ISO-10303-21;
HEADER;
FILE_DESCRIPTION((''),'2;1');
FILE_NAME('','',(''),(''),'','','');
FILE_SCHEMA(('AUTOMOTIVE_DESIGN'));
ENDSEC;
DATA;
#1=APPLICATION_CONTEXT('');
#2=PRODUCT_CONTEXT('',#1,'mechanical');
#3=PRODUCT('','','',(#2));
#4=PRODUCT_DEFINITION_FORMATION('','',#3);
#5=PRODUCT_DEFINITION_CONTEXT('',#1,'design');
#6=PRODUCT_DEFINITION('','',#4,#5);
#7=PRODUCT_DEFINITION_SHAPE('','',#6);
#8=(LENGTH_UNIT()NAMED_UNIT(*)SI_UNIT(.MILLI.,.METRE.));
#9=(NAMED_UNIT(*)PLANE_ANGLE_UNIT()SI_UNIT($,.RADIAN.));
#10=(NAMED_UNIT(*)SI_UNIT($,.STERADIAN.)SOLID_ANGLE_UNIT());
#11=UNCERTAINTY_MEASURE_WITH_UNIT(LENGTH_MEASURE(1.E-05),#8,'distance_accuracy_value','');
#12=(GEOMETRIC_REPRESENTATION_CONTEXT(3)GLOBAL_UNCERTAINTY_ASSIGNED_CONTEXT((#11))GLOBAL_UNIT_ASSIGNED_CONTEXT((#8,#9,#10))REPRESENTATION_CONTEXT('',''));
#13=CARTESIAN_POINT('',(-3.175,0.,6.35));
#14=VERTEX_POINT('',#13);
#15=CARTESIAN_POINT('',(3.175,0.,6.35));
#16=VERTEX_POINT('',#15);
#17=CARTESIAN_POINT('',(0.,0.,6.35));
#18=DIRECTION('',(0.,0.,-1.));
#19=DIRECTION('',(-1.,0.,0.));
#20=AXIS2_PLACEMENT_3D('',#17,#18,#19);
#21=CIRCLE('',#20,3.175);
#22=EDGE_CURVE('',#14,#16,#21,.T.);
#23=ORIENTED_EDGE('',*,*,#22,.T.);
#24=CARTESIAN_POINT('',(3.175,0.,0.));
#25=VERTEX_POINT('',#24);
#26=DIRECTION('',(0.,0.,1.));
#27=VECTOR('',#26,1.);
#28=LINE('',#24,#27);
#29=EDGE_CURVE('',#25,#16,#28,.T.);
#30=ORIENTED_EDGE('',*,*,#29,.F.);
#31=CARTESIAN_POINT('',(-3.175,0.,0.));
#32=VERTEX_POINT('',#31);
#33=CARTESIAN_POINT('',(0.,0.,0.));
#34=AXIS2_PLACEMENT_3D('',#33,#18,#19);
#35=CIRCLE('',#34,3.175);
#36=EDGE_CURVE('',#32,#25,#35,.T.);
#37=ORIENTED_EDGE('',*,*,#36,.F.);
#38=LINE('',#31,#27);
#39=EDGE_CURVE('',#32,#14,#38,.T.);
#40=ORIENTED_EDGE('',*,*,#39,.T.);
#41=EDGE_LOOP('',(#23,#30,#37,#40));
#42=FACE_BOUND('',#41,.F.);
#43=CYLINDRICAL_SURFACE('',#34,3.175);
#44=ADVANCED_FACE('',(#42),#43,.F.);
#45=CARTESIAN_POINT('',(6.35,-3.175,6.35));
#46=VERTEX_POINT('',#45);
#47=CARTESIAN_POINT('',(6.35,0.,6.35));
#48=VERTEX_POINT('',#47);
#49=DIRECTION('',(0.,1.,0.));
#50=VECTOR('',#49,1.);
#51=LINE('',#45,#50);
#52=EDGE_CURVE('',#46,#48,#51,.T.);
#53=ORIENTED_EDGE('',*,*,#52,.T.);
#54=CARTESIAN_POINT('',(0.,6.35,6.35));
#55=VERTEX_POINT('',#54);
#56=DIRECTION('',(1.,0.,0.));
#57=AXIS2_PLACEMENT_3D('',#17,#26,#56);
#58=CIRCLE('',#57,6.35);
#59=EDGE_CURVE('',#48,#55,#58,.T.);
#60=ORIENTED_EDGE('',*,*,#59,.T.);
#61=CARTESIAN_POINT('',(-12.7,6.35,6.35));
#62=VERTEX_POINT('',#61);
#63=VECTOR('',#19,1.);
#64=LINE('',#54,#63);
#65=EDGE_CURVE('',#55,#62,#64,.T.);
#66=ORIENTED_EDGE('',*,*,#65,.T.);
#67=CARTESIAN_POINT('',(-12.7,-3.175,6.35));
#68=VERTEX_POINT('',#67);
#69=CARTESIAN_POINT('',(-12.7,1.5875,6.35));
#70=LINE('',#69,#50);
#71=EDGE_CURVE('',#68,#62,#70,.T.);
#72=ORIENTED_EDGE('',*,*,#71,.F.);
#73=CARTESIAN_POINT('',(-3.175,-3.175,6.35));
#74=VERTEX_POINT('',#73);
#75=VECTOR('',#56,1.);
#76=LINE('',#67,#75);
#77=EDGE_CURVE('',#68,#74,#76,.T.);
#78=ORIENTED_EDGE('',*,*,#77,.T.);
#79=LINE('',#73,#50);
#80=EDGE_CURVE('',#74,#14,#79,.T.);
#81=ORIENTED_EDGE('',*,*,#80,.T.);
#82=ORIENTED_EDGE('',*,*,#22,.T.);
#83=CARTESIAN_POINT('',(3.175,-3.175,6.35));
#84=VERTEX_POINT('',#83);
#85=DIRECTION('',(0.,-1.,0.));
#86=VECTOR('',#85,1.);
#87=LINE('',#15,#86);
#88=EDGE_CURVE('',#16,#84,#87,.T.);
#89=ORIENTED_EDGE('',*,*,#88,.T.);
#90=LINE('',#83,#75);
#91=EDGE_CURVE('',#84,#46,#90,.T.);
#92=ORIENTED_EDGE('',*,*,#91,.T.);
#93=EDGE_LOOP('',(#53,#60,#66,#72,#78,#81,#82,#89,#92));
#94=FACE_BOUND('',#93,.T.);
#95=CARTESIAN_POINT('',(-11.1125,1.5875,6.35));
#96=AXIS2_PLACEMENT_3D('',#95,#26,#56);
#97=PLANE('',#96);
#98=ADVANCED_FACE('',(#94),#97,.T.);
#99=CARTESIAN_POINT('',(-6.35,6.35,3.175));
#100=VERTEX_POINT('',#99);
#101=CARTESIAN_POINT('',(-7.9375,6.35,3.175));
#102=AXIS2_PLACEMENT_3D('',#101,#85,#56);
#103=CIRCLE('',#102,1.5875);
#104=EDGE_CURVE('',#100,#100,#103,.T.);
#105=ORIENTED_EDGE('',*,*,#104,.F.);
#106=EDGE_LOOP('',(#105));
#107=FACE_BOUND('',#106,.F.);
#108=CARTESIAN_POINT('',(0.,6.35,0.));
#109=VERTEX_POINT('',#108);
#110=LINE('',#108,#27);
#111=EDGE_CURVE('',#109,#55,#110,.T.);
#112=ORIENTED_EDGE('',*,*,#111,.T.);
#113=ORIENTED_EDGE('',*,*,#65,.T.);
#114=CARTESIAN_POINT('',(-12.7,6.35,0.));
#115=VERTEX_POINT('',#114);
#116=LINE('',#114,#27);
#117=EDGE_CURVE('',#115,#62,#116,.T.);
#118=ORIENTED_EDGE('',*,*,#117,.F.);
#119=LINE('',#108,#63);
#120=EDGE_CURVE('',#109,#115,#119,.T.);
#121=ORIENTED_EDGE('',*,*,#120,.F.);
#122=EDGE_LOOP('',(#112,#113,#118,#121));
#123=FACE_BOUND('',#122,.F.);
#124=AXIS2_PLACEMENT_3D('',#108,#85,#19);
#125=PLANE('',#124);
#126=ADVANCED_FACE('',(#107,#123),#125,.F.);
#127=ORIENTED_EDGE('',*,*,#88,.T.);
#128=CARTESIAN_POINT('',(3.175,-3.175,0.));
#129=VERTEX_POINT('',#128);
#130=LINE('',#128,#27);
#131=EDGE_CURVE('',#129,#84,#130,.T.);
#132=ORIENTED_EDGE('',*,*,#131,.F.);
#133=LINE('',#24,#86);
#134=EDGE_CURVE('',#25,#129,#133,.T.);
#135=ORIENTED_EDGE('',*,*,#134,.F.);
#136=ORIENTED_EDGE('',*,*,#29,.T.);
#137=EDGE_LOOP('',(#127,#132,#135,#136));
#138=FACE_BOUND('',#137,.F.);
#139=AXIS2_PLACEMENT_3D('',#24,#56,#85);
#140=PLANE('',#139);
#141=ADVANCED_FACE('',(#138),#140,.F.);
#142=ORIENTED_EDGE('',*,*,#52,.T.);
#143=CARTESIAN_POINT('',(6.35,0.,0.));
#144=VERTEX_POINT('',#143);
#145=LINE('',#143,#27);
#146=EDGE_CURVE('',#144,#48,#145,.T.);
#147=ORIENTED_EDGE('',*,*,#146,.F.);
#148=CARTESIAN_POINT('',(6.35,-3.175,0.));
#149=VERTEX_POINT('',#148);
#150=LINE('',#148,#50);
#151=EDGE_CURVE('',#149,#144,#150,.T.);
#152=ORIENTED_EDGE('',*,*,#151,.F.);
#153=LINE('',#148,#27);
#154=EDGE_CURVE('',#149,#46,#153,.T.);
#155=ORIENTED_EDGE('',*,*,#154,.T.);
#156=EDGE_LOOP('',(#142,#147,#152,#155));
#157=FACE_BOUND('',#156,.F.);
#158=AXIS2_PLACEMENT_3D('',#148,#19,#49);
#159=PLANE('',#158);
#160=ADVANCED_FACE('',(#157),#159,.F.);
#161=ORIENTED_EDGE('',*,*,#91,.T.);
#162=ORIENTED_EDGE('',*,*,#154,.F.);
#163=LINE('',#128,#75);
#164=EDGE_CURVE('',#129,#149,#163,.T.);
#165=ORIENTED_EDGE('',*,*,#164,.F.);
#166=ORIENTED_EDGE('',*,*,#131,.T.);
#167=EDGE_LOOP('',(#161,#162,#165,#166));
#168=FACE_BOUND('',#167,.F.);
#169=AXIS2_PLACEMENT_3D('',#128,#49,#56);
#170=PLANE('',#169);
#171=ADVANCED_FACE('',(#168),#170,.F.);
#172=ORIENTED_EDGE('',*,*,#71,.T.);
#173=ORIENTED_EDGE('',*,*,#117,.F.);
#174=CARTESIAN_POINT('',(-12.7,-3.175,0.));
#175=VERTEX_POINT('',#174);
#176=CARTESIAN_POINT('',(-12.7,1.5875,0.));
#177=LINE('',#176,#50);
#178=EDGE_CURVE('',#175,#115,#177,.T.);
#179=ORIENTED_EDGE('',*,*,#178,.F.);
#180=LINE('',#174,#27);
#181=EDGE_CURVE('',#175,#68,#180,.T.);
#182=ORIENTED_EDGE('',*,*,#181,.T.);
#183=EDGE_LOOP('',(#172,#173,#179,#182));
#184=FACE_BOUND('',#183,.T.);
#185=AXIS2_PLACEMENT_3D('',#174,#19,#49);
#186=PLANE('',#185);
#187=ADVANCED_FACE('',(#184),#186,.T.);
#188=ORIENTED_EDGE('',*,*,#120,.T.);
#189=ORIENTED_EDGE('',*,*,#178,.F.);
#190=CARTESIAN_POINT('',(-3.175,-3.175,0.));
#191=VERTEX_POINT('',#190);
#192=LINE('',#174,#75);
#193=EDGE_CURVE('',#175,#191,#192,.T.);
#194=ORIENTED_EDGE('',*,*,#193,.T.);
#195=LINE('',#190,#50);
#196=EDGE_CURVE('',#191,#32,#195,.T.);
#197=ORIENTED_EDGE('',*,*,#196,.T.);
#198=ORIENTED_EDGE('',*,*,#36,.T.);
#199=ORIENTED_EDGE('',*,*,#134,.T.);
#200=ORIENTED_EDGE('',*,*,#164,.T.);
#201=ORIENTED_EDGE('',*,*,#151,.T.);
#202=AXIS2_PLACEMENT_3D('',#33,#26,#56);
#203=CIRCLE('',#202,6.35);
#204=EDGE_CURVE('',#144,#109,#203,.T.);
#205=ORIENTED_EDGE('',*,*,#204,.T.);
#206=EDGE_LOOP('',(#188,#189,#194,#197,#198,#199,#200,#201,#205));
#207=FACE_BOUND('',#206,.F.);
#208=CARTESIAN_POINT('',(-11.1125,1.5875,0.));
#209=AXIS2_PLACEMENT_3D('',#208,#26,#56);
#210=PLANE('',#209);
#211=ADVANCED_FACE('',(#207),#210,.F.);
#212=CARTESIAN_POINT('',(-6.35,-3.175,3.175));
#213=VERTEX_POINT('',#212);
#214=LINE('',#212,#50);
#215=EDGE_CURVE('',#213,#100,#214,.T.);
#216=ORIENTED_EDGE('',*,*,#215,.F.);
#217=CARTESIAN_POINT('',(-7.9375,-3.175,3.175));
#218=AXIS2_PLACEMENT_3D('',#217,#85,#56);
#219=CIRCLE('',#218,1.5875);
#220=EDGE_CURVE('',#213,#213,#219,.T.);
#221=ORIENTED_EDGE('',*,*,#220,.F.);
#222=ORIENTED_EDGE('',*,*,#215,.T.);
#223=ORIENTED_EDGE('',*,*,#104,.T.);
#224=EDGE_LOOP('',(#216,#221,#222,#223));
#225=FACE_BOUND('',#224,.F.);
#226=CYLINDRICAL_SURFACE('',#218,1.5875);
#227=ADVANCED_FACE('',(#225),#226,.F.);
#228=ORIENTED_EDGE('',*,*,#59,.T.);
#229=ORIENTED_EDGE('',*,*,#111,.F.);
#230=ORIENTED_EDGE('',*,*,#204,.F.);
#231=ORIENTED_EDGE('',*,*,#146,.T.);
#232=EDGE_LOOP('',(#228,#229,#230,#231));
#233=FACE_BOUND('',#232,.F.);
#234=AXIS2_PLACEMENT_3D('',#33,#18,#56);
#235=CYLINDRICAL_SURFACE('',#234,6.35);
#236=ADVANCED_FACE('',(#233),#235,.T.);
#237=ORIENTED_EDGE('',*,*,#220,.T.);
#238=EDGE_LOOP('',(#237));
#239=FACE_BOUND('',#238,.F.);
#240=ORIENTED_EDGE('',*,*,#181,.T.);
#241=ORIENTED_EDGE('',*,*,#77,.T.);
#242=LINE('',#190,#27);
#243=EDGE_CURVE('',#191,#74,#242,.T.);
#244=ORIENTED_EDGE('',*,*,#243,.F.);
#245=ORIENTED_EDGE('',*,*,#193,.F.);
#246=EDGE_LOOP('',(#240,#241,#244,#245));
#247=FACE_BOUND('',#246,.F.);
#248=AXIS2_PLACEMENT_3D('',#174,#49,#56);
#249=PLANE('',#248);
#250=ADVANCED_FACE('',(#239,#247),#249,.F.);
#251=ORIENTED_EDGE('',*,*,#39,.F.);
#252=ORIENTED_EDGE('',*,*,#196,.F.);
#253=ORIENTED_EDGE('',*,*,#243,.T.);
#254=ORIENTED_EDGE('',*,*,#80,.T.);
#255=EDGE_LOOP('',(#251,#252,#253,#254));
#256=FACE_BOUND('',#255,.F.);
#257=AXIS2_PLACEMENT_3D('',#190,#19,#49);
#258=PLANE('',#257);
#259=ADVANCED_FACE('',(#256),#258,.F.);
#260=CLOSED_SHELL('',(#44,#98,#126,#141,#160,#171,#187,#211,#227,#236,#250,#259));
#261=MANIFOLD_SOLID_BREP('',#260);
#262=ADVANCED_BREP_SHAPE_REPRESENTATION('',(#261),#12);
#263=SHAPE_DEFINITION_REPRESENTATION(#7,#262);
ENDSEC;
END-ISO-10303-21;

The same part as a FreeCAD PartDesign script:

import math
import FreeCAD as App
import Part
import Sketcher

V = App.Vector
Q = App.Units.Quantity

doc = App.newDocument("Part")
body = doc.addObject("PartDesign::Body", "Body")

# Sketch on XY plane
sketch1 = body.newObject("Sketcher::SketchObject", "Sketch")
sketch1.AttachmentSupport = (doc.getObject("XY_Plane"), [""])
sketch1.MapMode = "FlatFace"
sketch1.addGeometry(Part.LineSegment(V(-12.7, 6.3, 0), V(-12.7, -3.2, 0)), False)
sketch1.addGeometry(Part.LineSegment(V(-12.7, -3.2, 0), V(-3.2, -3.2, 0)), False)
sketch1.addGeometry(Part.LineSegment(V(-3.2, -3.2, 0), V(-3.2, 0, 0)), False)
sketch1.addGeometry(Part.ArcOfCircle(Part.Circle(V(0, 0, 0), V(0, 0, 1), 3.2), math.radians(0), math.radians(180)), False)
sketch1.addGeometry(Part.LineSegment(V(3.2, 0, 0), V(3.2, -3.2, 0)), False)
sketch1.addGeometry(Part.LineSegment(V(3.2, -3.2, 0), V(6.3, -3.2, 0)), False)
sketch1.addGeometry(Part.LineSegment(V(6.3, -3.2, 0), V(6.3, 0, 0)), False)
sketch1.addGeometry(Part.ArcOfCircle(Part.Circle(V(0, 0, 0), V(0, 0, 1), 6.3), math.radians(0), math.radians(90)), False)
sketch1.addGeometry(Part.LineSegment(V(0, 6.3, 0), V(-12.7, 6.3, 0)), False)
sketch1.addConstraint(Sketcher.Constraint("Coincident", 0, 2, 1, 1))
sketch1.addConstraint(Sketcher.Constraint("Coincident", 1, 2, 2, 1))
sketch1.addConstraint(Sketcher.Constraint("Tangent", 2, 2, 3, 2))
sketch1.addConstraint(Sketcher.Constraint("Tangent", 3, 1, 4, 1))
sketch1.addConstraint(Sketcher.Constraint("Coincident", 4, 2, 5, 1))
sketch1.addConstraint(Sketcher.Constraint("Coincident", 5, 2, 6, 1))
sketch1.addConstraint(Sketcher.Constraint("Tangent", 6, 2, 7, 1))
sketch1.addConstraint(Sketcher.Constraint("Tangent", 7, 2, 8, 1))
sketch1.addConstraint(Sketcher.Constraint("Coincident", 8, 2, 0, 1))
sketch1.addConstraint(Sketcher.Constraint("Vertical", 0))
sketch1.addConstraint(Sketcher.Constraint("Horizontal", 1))
sketch1.addConstraint(Sketcher.Constraint("Vertical", 2))
sketch1.addConstraint(Sketcher.Constraint("Vertical", 4))
sketch1.addConstraint(Sketcher.Constraint("Horizontal", 5))
sketch1.addConstraint(Sketcher.Constraint("Vertical", 6))
sketch1.addConstraint(Sketcher.Constraint("Horizontal", 8))
sketch1.addConstraint(Sketcher.Constraint("Coincident", 3, 3, -1, 1))
sketch1.addConstraint(Sketcher.Constraint("Coincident", 7, 3, -1, 1))
sketch1.addConstraint(Sketcher.Constraint("Horizontal", 1, 2, 4, 2))
sketch1.addConstraint(Sketcher.Constraint("Equal", 1, 0))
sketch1.addConstraint(Sketcher.Constraint("Equal", 5, 2))
sketch1.addConstraint(Sketcher.Constraint("Radius", 7, Q("0.25 in")))
sketch1.addConstraint(Sketcher.Constraint("Radius", 3, Q("0.125 in")))
pad1 = body.newObject("PartDesign::Pad", "Pad")
pad1.Profile = sketch1
pad1.Length = Q("0.25 in")

# Sketch on XZ plane
sketch2 = body.newObject("Sketcher::SketchObject", "Sketch001")
sketch2.AttachmentSupport = (doc.getObject("XZ_Plane"), [""])
sketch2.MapMode = "FlatFace"
sketch2.AttachmentOffset = App.Placement(V(0, 0, 0.125 * 25.4), App.Rotation())
sketch2.addGeometry(Part.Circle(V(-7.9, 3.2, 0), V(0, 0, 1), 1.6), False)
sketch2.addConstraint(Sketcher.Constraint("Diameter", 0, Q("0.125 in")))
sketch2.addConstraint(Sketcher.Constraint("DistanceX", 0, 3, -1, 1, Q("0.3125 in")))
sketch2.addConstraint(Sketcher.Constraint("DistanceY", -1, 1, 0, 3, Q("0.125 in")))
pocket1 = body.newObject("PartDesign::Pocket", "Pocket")
pocket1.Profile = sketch2
pocket1.Type = "ThroughAll"

doc.recompute()
